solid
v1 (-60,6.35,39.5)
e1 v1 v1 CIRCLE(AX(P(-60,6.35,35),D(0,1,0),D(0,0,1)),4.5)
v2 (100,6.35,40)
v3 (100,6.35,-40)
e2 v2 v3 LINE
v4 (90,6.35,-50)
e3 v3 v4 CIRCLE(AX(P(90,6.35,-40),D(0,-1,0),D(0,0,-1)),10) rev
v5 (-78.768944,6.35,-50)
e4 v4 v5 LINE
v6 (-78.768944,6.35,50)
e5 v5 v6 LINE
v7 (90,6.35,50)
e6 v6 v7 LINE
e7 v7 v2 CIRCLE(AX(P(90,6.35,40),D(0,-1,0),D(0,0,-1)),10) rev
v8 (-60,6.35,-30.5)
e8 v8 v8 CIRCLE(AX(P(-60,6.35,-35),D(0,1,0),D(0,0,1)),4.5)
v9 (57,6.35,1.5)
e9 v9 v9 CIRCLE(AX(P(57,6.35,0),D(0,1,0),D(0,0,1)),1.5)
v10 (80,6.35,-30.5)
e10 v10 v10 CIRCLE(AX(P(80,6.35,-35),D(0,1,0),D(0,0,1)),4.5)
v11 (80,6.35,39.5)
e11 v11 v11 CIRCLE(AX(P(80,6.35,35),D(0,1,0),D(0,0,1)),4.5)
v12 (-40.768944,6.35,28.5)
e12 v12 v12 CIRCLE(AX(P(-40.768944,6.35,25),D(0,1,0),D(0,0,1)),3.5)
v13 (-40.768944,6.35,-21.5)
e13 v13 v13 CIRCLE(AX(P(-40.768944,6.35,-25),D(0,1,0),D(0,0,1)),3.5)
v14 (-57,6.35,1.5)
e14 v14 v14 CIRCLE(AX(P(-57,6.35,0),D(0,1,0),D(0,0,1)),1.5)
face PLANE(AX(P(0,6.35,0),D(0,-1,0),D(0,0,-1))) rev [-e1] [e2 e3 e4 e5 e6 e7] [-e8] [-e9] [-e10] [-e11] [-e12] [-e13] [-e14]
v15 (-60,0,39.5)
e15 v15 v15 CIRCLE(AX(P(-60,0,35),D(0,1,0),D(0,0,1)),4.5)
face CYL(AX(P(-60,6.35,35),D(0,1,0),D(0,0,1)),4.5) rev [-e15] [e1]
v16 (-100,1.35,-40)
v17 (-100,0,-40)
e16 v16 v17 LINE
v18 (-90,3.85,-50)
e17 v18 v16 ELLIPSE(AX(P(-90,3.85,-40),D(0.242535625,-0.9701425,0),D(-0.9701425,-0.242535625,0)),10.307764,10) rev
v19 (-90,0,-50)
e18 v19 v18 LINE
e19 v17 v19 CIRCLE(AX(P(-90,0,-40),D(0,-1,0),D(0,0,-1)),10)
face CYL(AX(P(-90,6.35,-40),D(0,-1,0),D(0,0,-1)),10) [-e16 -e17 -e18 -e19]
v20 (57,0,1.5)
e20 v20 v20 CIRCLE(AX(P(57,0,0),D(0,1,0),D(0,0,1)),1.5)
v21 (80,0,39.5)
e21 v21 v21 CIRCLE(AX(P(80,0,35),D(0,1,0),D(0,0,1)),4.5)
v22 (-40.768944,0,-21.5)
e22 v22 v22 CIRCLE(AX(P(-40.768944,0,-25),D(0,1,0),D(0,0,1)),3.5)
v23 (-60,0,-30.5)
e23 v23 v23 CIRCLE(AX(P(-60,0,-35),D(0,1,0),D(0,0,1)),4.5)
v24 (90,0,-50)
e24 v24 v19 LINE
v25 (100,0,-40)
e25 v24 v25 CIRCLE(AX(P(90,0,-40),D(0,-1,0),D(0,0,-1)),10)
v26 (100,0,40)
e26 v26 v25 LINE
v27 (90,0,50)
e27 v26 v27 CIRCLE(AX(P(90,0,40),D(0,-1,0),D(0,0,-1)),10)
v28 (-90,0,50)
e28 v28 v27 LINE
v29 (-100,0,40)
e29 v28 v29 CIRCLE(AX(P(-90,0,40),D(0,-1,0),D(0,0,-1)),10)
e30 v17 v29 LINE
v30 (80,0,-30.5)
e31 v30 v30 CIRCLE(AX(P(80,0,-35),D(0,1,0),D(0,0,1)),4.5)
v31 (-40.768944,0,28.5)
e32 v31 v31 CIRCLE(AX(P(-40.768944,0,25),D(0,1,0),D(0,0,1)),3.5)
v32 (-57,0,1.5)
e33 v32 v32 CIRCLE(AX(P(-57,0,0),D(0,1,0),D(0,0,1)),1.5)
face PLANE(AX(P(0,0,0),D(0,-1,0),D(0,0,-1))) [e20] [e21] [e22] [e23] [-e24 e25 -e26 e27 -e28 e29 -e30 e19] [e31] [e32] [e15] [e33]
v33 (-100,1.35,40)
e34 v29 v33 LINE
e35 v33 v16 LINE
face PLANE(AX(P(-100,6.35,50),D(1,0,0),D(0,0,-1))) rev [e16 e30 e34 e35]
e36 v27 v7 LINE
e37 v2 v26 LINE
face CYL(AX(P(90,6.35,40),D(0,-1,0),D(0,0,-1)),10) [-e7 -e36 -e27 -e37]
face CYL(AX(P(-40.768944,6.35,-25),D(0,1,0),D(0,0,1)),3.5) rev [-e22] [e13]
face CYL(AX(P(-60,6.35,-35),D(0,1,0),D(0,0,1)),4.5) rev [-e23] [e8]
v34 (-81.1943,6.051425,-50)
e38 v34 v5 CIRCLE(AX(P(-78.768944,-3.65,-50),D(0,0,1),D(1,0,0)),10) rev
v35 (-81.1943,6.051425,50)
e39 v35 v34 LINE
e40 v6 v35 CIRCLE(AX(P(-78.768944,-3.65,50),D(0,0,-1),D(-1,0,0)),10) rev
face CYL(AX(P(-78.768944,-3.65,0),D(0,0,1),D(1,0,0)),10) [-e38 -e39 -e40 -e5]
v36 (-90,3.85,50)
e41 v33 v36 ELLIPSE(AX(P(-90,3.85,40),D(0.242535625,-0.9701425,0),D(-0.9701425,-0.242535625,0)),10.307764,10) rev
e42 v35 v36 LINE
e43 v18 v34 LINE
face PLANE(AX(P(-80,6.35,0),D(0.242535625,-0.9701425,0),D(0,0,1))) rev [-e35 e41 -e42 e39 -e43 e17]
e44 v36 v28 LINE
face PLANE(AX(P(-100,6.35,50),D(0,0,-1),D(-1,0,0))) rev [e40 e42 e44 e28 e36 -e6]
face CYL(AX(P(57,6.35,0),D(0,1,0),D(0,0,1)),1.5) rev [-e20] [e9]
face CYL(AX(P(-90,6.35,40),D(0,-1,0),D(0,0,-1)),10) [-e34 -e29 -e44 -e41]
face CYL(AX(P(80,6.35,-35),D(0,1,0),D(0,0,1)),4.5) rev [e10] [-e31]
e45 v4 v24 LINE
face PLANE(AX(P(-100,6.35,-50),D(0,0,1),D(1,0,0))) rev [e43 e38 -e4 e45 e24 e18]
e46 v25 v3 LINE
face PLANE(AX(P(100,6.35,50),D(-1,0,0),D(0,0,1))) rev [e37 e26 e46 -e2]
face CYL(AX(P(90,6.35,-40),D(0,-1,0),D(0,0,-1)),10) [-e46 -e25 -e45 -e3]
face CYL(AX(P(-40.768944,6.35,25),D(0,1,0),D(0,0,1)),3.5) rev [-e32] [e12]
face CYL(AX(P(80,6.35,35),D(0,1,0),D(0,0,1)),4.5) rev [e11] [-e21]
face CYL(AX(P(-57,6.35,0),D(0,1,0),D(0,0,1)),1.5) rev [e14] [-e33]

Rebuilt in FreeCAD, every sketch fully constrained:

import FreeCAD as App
import Part
import Sketcher
from FreeCAD import Vector
Q = App.Units.Quantity


def edges_at(feature, points):
    """Names of the edges that pass closest to the given points."""
    edges = feature.Shape.Edges
    near = lambda p: min(range(len(edges)), key=lambda i: edges[i].distToShape(Part.Vertex(*p))[0])
    return sorted({f"Edge{near(p) + 1}" for p in points})

doc = App.newDocument("Part")
params = doc.addObject("Spreadsheet::Sheet", "Params")
for row, (alias, value) in enumerate([
    ("sketch1_width", "200 mm"),
    ("sketch1_height", "100 mm"),
    ("pad1_length", "6.35 mm"),
    ("chamfer_size", "5 mm"),
    ("chamfer_size2", "20 mm"),
    ("fillet_radius", "10 mm"),
    ("sketch2_diameter", "3 mm"),
    ("hole_diameter", "3 mm"),
    ("sketch3_diameter", "9 mm"),
    ("hole2_diameter", "9 mm"),
    ("sketch4_diameter", "7 mm"),
    ("hole3_diameter", "7 mm"),
], start=1):
    params.set(f"A{row}", alias)
    params.set(f"B{row}", "=" + value)
    params.setAlias(f"B{row}", alias)

body = doc.addObject("PartDesign::Body", "Body")

# Sketch on XZ plane
sketch1 = doc.addObject("Sketcher::SketchObject", "Sketch")
body.addObject(sketch1)
sketch1.AttachmentSupport = (doc.XZ_Plane, [""])
sketch1.MapMode = "FlatFace"
sketch1.addGeometry(Part.LineSegment(Vector(-100, -50, 0), Vector(-100, 50, 0)), False)
sketch1.addGeometry(Part.LineSegment(Vector(-100, 50, 0), Vector(100, 50, 0)), False)
sketch1.addGeometry(Part.LineSegment(Vector(100, 50, 0), Vector(100, -50, 0)), False)
sketch1.addGeometry(Part.LineSegment(Vector(100, -50, 0), Vector(-100, -50, 0)), False)
sketch1.addConstraint(Sketcher.Constraint("Coincident", 0, 2, 1, 1))
sketch1.addConstraint(Sketcher.Constraint("Coincident", 1, 2, 2, 1))
sketch1.addConstraint(Sketcher.Constraint("Coincident", 2, 2, 3, 1))
sketch1.addConstraint(Sketcher.Constraint("Coincident", 3, 2, 0, 1))
sketch1.addConstraint(Sketcher.Constraint("Vertical", 0))
sketch1.addConstraint(Sketcher.Constraint("Horizontal", 1))
sketch1.addConstraint(Sketcher.Constraint("Vertical", 2))
sketch1.addConstraint(Sketcher.Constraint("Horizontal", 3))
sketch1.addConstraint(Sketcher.Constraint("Symmetric", 0, 2, 2, 2, -1, 1))
sketch1.addConstraint(Sketcher.Constraint("DistanceX", 1, 1, 1, 2, Q("200 mm")))
sketch1.addConstraint(Sketcher.Constraint("DistanceY", 0, 1, 0, 2, Q("100 mm")))
sketch1.setExpression("Constraints[9]", "Params.sketch1_width")
sketch1.setExpression("Constraints[10]", "Params.sketch1_height")
pad1 = doc.addObject("PartDesign::Pad", "Pad")
body.addObject(pad1)
pad1.Profile = sketch1
pad1.setExpression("Length", "Params.pad1_length")
pad1.Reversed = True
doc.recompute()

chamfer = doc.addObject("PartDesign::Chamfer", "Chamfer")
body.addObject(chamfer)
chamfer.Base = (pad1, edges_at(pad1, [(-100, 6.35, 0)]))
chamfer.ChamferType = "Two distances"
chamfer.setExpression("Size", "Params.chamfer_size")
chamfer.setExpression("Size2", "Params.chamfer_size2")
doc.recompute()

fillet = doc.addObject("PartDesign::Fillet", "Fillet")
body.addObject(fillet)
fillet.Base = (chamfer, edges_at(chamfer, [
    (-80, 6.35, 0),
    (-100, 0.675, 50),
    (-100, 0.675, -50),
    (100, 3.175, 50),
    (100, 3.175, -50),
]))
fillet.setExpression("Radius", "Params.fillet_radius")

# Sketch on XZ plane
sketch2 = doc.addObject("Sketcher::SketchObject", "Sketch001")
body.addObject(sketch2)
sketch2.AttachmentSupport = (doc.XZ_Plane, [""])
sketch2.MapMode = "FlatFace"
sketch2.AttachmentOffset = App.Placement(Vector(0, 0, -6.35), App.Rotation())
sketch2.addGeometry(Part.Circle(Vector(-57, 0, 0), Vector(0, 0, 1), 1.5), False)
sketch2.addGeometry(Part.Circle(Vector(57, 0, 0), Vector(0, 0, 1), 1.5), False)
sketch2.addConstraint(Sketcher.Constraint("Equal", 0, 1))
sketch2.addConstraint(Sketcher.Constraint("Symmetric", 0, 3, 1, 3, -1, 1))
sketch2.addConstraint(Sketcher.Constraint("PointOnObject", 0, 3, -1))
sketch2.addConstraint(Sketcher.Constraint("Diameter", 0, Q("3 mm")))
sketch2.addConstraint(Sketcher.Constraint("DistanceX", 0, 3, -1, 1, Q("57 mm")))
sketch2.setExpression("Constraints[3]", "Params.sketch2_diameter")
doc.recompute()
hole = doc.addObject("PartDesign::Hole", "Hole")
body.addObject(hole)
hole.Profile = sketch2
hole.ThreadType = "None"
hole.setExpression("Diameter", "Params.hole_diameter")
hole.DepthType = "ThroughAll"
hole.Reversed = True

# Sketch on XZ plane
sketch3 = doc.addObject("Sketcher::SketchObject", "Sketch002")
body.addObject(sketch3)
sketch3.AttachmentSupport = (doc.XZ_Plane, [""])
sketch3.MapMode = "FlatFace"
sketch3.AttachmentOffset = App.Placement(Vector(0, 0, -6.35), App.Rotation())
sketch3.addGeometry(Part.Circle(Vector(-60, -35, 0), Vector(0, 0, 1), 4.5), False)
sketch3.addGeometry(Part.Circle(Vector(80, 35, 0), Vector(0, 0, 1), 4.5), False)
sketch3.addGeometry(Part.Circle(Vector(-60, 35, 0), Vector(0, 0, 1), 4.5), False)
sketch3.addGeometry(Part.Circle(Vector(80, -35, 0), Vector(0, 0, 1), 4.5), False)
sketch3.addConstraint(Sketcher.Constraint("Equal", 0, 1))
sketch3.addConstraint(Sketcher.Constraint("Equal", 1, 2))
sketch3.addConstraint(Sketcher.Constraint("Equal", 2, 3))
sketch3.addConstraint(Sketcher.Constraint("Symmetric", 0, 3, 2, 3, -1))
sketch3.addConstraint(Sketcher.Constraint("Symmetric", 1, 3, 3, 3, -1))
sketch3.addConstraint(Sketcher.Constraint("Horizontal", 1, 3, 2, 3))
sketch3.addConstraint(Sketcher.Constraint("Diameter", 0, Q("9 mm")))
sketch3.addConstraint(Sketcher.Constraint("DistanceX", 0, 3, -1, 1, Q("60 mm")))
sketch3.addConstraint(Sketcher.Constraint("DistanceY", 0, 3, -1, 1, Q("35 mm")))
sketch3.addConstraint(Sketcher.Constraint("DistanceX", -1, 1, 1, 3, Q("80 mm")))
sketch3.setExpression("Constraints[6]", "Params.sketch3_diameter")
doc.recompute()
hole2 = doc.addObject("PartDesign::Hole", "Hole001")
body.addObject(hole2)
hole2.Profile = sketch3
hole2.ThreadType = "None"
hole2.setExpression("Diameter", "Params.hole2_diameter")
hole2.DepthType = "ThroughAll"
hole2.Reversed = True

# Sketch on XZ plane
sketch4 = doc.addObject("Sketcher::SketchObject", "Sketch003")
body.addObject(sketch4)
sketch4.AttachmentSupport = (doc.XZ_Plane, [""])
sketch4.MapMode = "FlatFace"
sketch4.AttachmentOffset = App.Placement(Vector(0, 0, -6.35), App.Rotation())
sketch4.addGeometry(Part.Circle(Vector(-40.8, -25, 0), Vector(0, 0, 1), 3.5), False)
sketch4.addGeometry(Part.Circle(Vector(-40.8, 25, 0), Vector(0, 0, 1), 3.5), False)
sketch4.addConstraint(Sketcher.Constraint("Equal", 0, 1))
sketch4.addConstraint(Sketcher.Constraint("Symmetric", 0, 3, 1, 3, -1))
sketch4.addConstraint(Sketcher.Constraint("Diameter", 0, Q("7 mm")))
sketch4.addConstraint(Sketcher.Constraint("DistanceY", 0, 3, -1, 1, Q("25 mm")))
sketch4.addConstraint(Sketcher.Constraint("DistanceX", 0, 3, -1, 1, Q("40.768944 mm")))
sketch4.setExpression("Constraints[2]", "Params.sketch4_diameter")
doc.recompute()
hole3 = doc.addObject("PartDesign::Hole", "Hole002")
body.addObject(hole3)
hole3.Profile = sketch4
hole3.ThreadType = "None"
hole3.setExpression("Diameter", "Params.hole3_diameter")
hole3.DepthType = "ThroughAll"
hole3.Reversed = True

doc.recompute()
